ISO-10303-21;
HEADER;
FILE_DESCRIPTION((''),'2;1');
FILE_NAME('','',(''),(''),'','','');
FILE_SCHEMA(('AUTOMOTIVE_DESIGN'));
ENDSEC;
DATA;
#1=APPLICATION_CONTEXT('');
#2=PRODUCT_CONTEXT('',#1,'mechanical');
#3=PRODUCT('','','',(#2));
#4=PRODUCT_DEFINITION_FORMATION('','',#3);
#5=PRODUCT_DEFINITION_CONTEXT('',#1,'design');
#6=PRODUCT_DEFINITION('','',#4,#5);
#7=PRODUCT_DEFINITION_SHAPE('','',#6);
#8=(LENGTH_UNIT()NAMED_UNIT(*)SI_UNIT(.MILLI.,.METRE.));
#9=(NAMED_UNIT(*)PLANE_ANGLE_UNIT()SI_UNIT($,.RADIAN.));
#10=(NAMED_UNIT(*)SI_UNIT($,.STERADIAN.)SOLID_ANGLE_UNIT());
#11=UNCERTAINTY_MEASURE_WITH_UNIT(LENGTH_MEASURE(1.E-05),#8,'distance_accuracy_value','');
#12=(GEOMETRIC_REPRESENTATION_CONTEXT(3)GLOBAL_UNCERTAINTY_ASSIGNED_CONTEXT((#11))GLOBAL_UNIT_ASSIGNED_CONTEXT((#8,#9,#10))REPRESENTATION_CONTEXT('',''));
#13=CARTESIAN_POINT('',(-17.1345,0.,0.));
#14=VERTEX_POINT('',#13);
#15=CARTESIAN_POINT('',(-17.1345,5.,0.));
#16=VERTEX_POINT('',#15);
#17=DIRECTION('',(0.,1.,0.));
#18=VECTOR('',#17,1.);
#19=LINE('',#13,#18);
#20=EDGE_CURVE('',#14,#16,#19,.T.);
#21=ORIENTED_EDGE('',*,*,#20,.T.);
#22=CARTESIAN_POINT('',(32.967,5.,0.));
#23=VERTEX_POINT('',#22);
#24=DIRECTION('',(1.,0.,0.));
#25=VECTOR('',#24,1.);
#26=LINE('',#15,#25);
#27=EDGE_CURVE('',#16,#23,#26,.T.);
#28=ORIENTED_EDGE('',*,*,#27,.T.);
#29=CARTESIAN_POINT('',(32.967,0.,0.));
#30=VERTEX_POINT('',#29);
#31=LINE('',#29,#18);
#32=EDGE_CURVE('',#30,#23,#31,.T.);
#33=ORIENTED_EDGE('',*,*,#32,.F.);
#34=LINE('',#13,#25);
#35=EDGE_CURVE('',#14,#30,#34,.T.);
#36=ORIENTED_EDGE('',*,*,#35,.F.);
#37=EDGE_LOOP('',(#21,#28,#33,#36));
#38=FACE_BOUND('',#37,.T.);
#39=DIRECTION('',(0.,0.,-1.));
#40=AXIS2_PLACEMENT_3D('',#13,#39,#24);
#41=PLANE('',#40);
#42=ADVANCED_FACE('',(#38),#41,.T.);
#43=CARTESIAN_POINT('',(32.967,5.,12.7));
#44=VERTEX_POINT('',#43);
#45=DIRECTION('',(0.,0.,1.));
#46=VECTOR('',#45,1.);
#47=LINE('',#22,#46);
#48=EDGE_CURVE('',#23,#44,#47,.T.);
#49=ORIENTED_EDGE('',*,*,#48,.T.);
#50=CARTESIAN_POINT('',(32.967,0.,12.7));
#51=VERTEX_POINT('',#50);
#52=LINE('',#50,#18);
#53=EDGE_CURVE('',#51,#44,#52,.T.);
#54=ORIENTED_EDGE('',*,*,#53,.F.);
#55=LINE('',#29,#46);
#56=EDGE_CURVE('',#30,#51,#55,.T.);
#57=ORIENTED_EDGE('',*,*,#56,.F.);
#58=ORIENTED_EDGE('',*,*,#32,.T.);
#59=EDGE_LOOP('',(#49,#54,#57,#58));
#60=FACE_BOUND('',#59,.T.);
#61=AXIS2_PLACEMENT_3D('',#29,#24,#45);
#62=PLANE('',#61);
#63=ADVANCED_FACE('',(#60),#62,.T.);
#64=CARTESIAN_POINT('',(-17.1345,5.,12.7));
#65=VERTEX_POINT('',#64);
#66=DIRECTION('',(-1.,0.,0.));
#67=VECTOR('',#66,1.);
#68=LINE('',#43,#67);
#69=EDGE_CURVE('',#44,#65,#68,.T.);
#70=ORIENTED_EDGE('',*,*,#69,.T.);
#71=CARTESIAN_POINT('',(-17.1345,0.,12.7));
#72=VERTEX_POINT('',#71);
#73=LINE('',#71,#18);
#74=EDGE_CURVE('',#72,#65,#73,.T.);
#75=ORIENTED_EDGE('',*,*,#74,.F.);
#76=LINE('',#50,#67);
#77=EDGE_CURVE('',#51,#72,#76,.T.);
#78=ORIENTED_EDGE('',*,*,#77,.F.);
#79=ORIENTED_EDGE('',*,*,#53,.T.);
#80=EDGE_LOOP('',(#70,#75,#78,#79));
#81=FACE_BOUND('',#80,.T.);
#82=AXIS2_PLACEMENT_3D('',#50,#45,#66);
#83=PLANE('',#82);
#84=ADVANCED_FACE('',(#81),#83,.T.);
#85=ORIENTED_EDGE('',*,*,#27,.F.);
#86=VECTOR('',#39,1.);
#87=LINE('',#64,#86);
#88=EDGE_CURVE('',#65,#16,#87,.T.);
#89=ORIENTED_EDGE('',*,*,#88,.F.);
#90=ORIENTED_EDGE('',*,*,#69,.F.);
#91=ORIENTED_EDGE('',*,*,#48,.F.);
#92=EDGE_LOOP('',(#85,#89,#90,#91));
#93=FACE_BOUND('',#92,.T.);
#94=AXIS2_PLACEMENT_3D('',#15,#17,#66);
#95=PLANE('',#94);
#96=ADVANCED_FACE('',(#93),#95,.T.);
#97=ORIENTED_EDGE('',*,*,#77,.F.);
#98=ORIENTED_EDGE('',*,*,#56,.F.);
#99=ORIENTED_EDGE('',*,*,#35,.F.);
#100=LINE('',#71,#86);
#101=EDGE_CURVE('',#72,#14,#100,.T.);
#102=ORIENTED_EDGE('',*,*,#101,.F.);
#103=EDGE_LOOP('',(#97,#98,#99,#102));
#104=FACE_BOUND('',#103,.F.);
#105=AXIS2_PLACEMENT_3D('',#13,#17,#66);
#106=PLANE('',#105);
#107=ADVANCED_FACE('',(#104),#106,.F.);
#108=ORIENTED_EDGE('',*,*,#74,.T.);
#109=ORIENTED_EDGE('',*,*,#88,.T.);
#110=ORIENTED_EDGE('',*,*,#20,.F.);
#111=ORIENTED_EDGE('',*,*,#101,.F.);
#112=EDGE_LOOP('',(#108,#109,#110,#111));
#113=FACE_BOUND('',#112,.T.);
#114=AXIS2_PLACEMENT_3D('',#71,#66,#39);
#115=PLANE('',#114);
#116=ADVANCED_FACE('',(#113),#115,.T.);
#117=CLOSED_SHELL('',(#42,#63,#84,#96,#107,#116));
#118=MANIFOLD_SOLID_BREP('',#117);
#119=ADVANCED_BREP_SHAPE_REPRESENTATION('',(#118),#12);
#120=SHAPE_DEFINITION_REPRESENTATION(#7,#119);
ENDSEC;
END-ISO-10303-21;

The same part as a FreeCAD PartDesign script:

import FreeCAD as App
import Part
import Sketcher
from FreeCAD import Vector
Q = App.Units.Quantity


def add_polygon(sketch, points):
    """Adds a closed chain of lines whose ends are joined by coincident constraints."""
    first, n = sketch.GeometryCount, len(points)
    for a, b in zip(points, points[1:] + points[:1]):
        sketch.addGeometry(Part.LineSegment(App.Vector(*a, 0), App.Vector(*b, 0)), False)
    for i in range(n):
        sketch.addConstraint(Sketcher.Constraint("Coincident", first + i, 2, first + (i + 1) % n, 1))

doc = App.newDocument("Part")
body = doc.addObject("PartDesign::Body", "Body")

# Sketch on XZ plane
sketch1 = body.newObject("Sketcher::SketchObject", "Sketch")
sketch1.AttachmentSupport = (doc.getObject("XZ_Plane"), [""])
sketch1.MapMode = "FlatFace"
add_polygon(sketch1, [(32.967, 0), (-17.1345, 0), (-17.1345, 12.7), (32.967, 12.7)])  # lines 0-3
sketch1.addConstraint([
    Sketcher.Constraint("Horizontal", 0),
    Sketcher.Constraint("Vertical", 1),
    Sketcher.Constraint("Horizontal", 2),
    Sketcher.Constraint("Vertical", 3),
    Sketcher.Constraint("PointOnObject", 0, 2, -1),
    Sketcher.Constraint("DistanceY", 1, 1, 1, 2, Q("12.7 mm")),
    Sketcher.Constraint("DistanceX", 0, 2, 0, 1, Q("50.1015 mm")),
    Sketcher.Constraint("DistanceX", -1, 1, 2, 2, Q("32.967 mm")),
])
pad1 = body.newObject("PartDesign::Pad", "Pad")
pad1.Profile = sketch1
pad1.Length = 5
pad1.Reversed = True

doc.recompute()
